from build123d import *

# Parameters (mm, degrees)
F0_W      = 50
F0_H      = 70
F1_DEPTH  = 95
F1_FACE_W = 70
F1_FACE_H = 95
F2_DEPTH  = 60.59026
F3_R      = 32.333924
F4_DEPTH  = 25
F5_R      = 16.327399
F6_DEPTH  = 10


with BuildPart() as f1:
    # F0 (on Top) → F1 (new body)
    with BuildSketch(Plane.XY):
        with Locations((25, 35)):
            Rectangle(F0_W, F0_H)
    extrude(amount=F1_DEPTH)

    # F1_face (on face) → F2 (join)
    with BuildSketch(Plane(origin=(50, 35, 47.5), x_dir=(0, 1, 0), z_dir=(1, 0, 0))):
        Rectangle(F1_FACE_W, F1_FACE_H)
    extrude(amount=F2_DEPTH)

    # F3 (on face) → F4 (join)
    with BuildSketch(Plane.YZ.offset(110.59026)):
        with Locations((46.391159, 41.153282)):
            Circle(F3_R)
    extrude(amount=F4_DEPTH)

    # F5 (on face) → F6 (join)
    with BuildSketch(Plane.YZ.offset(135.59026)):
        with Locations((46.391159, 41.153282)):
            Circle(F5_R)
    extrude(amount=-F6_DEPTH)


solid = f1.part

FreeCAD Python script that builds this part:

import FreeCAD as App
import Part
import Sketcher

V = App.Vector

doc = App.newDocument("Part")
params = doc.addObject("Spreadsheet::Sheet", "Params")
for row, (alias, value) in enumerate([
    ("sketch1_width", "50 mm"),
    ("sketch1_height", "70 mm"),
    ("pad1_length", "95 mm"),
    ("sketch2_width", "70 mm"),
    ("sketch2_height", "95 mm"),
    ("pad2_length", "60.59026 mm"),
    ("pad3_length", "25 mm"),
    ("pad4_length", "10 mm"),
], start=1):
    params.set(f"A{row}", alias)
    params.set(f"B{row}", "=" + value)
    params.setAlias(f"B{row}", alias)

body = doc.addObject("PartDesign::Body", "Body")

# Sketch on XY plane
sketch1 = body.newObject("Sketcher::SketchObject", "Sketch")
sketch1.AttachmentSupport = (doc.getObject("XY_Plane"), [""])
sketch1.MapMode = "FlatFace"
sketch1.addGeometry([
    Part.LineSegment(V(0, 70, 0), V(0, 0, 0)),
    Part.LineSegment(V(0, 0, 0), V(50, 0, 0)),
    Part.LineSegment(V(50, 0, 0), V(50, 70, 0)),
    Part.LineSegment(V(50, 70, 0), V(0, 70, 0)),
], False)
sketch1.addConstraint([
    Sketcher.Constraint("Coincident", 0, 2, 1, 1),
    Sketcher.Constraint("Coincident", 1, 2, 2, 1),
    Sketcher.Constraint("Coincident", 2, 2, 3, 1),
    Sketcher.Constraint("Coincident", 3, 2, 0, 1),
    Sketcher.Constraint("Vertical", 0),
    Sketcher.Constraint("Horizontal", 1),
    Sketcher.Constraint("Vertical", 2),
    Sketcher.Constraint("Horizontal", 3),
    Sketcher.Constraint("Coincident", 0, 2, -1, 1),
    Sketcher.Constraint("DistanceX", 1, 1, 1, 2, 50.0),
    Sketcher.Constraint("DistanceY", 0, 2, 0, 1, 70.0),
])
sketch1.setExpression("Constraints[9]", "Params.sketch1_width")
sketch1.setExpression("Constraints[10]", "Params.sketch1_height")
pad1 = body.newObject("PartDesign::Pad", "Pad")
pad1.Profile = sketch1
pad1.setExpression("Length", "Params.pad1_length")

# Sketch on YZ plane
sketch2 = body.newObject("Sketcher::SketchObject", "Sketch001")
sketch2.AttachmentSupport = (doc.getObject("YZ_Plane"), [""])
sketch2.MapMode = "FlatFace"
sketch2.AttachmentOffset = App.Placement(V(0, 0, 50), App.Rotation())
sketch2.addGeometry([
    Part.LineSegment(V(0, 95, 0), V(0, 0, 0)),
    Part.LineSegment(V(0, 0, 0), V(70, 0, 0)),
    Part.LineSegment(V(70, 0, 0), V(70, 95, 0)),
    Part.LineSegment(V(70, 95, 0), V(0, 95, 0)),
], False)
sketch2.addConstraint([
    Sketcher.Constraint("Coincident", 0, 2, 1, 1),
    Sketcher.Constraint("Coincident", 1, 2, 2, 1),
    Sketcher.Constraint("Coincident", 2, 2, 3, 1),
    Sketcher.Constraint("Coincident", 3, 2, 0, 1),
    Sketcher.Constraint("Vertical", 0),
    Sketcher.Constraint("Horizontal", 1),
    Sketcher.Constraint("Vertical", 2),
    Sketcher.Constraint("Horizontal", 3),
    Sketcher.Constraint("Coincident", 0, 2, -1, 1),
    Sketcher.Constraint("DistanceX", 1, 1, 1, 2, 70.0),
    Sketcher.Constraint("DistanceY", 0, 2, 0, 1, 95.0),
])
sketch2.setExpression("Constraints[9]", "Params.sketch2_width")
sketch2.setExpression("Constraints[10]", "Params.sketch2_height")
pad2 = body.newObject("PartDesign::Pad", "Pad001")
pad2.Profile = sketch2
pad2.setExpression("Length", "Params.pad2_length")

# Sketch on YZ plane
sketch3 = body.newObject("Sketcher::SketchObject", "Sketch002")
sketch3.AttachmentSupport = (doc.getObject("YZ_Plane"), [""])
sketch3.MapMode = "FlatFace"
sketch3.AttachmentOffset = App.Placement(V(0, 0, 110.59026), App.Rotation())
sketch3.addGeometry(Part.Circle(V(46.391159, 41.153282, 0), V(0, 0, 1), 32.333924), False)
sketch3.addConstraint([
    Sketcher.Constraint("Diameter", 0, 64.667848),
    Sketcher.Constraint("DistanceX", -1, 1, 0, 3, 46.391159),
    Sketcher.Constraint("DistanceY", -1, 1, 0, 3, 41.153282),
])
pad3 = body.newObject("PartDesign::Pad", "Pad002")
pad3.Profile = sketch3
pad3.setExpression("Length", "Params.pad3_length")

# Sketch on YZ plane
sketch4 = body.newObject("Sketcher::SketchObject", "Sketch003")
sketch4.AttachmentSupport = (doc.getObject("YZ_Plane"), [""])
sketch4.MapMode = "FlatFace"
sketch4.AttachmentOffset = App.Placement(V(0, 0, 135.59026), App.Rotation())
sketch4.addGeometry(Part.Circle(V(46.391159, 41.153282, 0), V(0, 0, 1), 16.327399), False)
sketch4.addConstraint([
    Sketcher.Constraint("Diameter", 0, 32.654798),
    Sketcher.Constraint("DistanceX", -1, 1, 0, 3, 46.391159),
    Sketcher.Constraint("DistanceY", -1, 1, 0, 3, 41.153282),
])
pad4 = body.newObject("PartDesign::Pad", "Pad003")
pad4.Profile = sketch4
pad4.setExpression("Length", "Params.pad4_length")
pad4.Reversed = True

doc.recompute()
